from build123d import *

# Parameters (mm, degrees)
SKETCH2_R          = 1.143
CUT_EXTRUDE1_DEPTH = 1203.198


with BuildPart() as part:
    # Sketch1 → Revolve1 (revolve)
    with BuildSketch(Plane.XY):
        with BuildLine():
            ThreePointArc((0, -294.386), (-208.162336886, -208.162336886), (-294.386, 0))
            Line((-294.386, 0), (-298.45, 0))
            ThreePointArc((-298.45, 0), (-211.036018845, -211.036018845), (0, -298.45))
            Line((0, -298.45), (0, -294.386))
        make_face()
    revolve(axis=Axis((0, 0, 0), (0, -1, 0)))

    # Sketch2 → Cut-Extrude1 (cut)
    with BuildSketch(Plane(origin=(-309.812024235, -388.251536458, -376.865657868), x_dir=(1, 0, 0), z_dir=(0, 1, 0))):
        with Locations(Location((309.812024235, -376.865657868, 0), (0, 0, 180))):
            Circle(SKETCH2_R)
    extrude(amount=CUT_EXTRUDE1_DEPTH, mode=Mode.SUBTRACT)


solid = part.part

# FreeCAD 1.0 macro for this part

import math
import FreeCAD as App
import Part
import Sketcher

V = App.Vector
Q = App.Units.Quantity

doc = App.newDocument("Part")
params = doc.addObject("Spreadsheet::Sheet", "Params")
for row, (alias, value) in enumerate([
    ("sketch1_radius", "11.59 in"),
    ("sketch1_radius2", "11.75 in"),
    ("revolution_angle", "360 deg"),
    ("sketch2_diameter", "0.09 in"),
    ("pocket1_length", "47.37 in"),
], start=1):
    params.set(f"A{row}", alias)
    params.set(f"B{row}", "=" + value)
    params.setAlias(f"B{row}", alias)

body = doc.addObject("PartDesign::Body", "Body")

sketch1 = body.newObject("Sketcher::SketchObject", "Sketch")
sketch1.AttachmentSupport = (doc.getObject("XY_Plane"), [""])
sketch1.MapMode = "FlatFace"
sketch1.addGeometry(Part.ArcOfCircle(Part.Circle(V(0, 0, 0), V(0, 0, 1), 294.4), math.radians(-180), math.radians(-90)), False)
sketch1.addGeometry(Part.LineSegment(V(-294.4, 0, 0), V(-298.4, 0, 0)), False)
sketch1.addGeometry(Part.ArcOfCircle(Part.Circle(V(0, 0, 0), V(0, 0, 1), 298.4), math.radians(180), math.radians(270)), False)
sketch1.addGeometry(Part.LineSegment(V(0, -298.4, 0), V(0, -294.4, 0)), False)
sketch1.addConstraint(Sketcher.Constraint("Coincident", 0, 1, 1, 1))
sketch1.addConstraint(Sketcher.Constraint("Coincident", 1, 2, 2, 1))
sketch1.addConstraint(Sketcher.Constraint("Coincident", 2, 2, 3, 1))
sketch1.addConstraint(Sketcher.Constraint("Coincident", 3, 2, 0, 2))
sketch1.addConstraint(Sketcher.Constraint("Horizontal", 1))
sketch1.addConstraint(Sketcher.Constraint("Vertical", 3))
sketch1.addConstraint(Sketcher.Constraint("Coincident", 0, 3, -1, 1))
sketch1.addConstraint(Sketcher.Constraint("Coincident", 2, 3, -1, 1))
sketch1.addConstraint(Sketcher.Constraint("PointOnObject", 0, 1, -1))
sketch1.addConstraint(Sketcher.Constraint("PointOnObject", 2, 2, -2))
sketch1.addConstraint(Sketcher.Constraint("Radius", 0, Q("11.59 in")))
sketch1.addConstraint(Sketcher.Constraint("Radius", 2, Q("11.75 in")))
sketch1.setExpression("Constraints[10]", "Params.sketch1_radius")
sketch1.setExpression("Constraints[11]", "Params.sketch1_radius2")
revolution = body.newObject("PartDesign::Revolution", "Revolution")
revolution.Profile = sketch1
revolution.ReferenceAxis = (sketch1, ["V_Axis"])
revolution.setExpression("Angle", "Params.revolution_angle")

sketch2 = body.newObject("Sketcher::SketchObject", "Sketch001")
sketch2.AttachmentSupport = (doc.getObject("XZ_Plane"), [""])
sketch2.MapMode = "FlatFace"
sketch2.AttachmentOffset = App.Placement(V(0, 0, 388.251536), App.Rotation())
sketch2.addGeometry(Part.Circle(V(0, 0, 0), V(0, 0, 1), 1.1), False)
sketch2.addConstraint(Sketcher.Constraint("Coincident", 0, 3, -1, 1))
sketch2.addConstraint(Sketcher.Constraint("Diameter", 0, Q("0.09 in")))
sketch2.setExpression("Constraints[1]", "Params.sketch2_diameter")
pocket1 = body.newObject("PartDesign::Pocket", "Pocket")
pocket1.Profile = sketch2
pocket1.setExpression("Length", "Params.pocket1_length")

doc.recompute()
